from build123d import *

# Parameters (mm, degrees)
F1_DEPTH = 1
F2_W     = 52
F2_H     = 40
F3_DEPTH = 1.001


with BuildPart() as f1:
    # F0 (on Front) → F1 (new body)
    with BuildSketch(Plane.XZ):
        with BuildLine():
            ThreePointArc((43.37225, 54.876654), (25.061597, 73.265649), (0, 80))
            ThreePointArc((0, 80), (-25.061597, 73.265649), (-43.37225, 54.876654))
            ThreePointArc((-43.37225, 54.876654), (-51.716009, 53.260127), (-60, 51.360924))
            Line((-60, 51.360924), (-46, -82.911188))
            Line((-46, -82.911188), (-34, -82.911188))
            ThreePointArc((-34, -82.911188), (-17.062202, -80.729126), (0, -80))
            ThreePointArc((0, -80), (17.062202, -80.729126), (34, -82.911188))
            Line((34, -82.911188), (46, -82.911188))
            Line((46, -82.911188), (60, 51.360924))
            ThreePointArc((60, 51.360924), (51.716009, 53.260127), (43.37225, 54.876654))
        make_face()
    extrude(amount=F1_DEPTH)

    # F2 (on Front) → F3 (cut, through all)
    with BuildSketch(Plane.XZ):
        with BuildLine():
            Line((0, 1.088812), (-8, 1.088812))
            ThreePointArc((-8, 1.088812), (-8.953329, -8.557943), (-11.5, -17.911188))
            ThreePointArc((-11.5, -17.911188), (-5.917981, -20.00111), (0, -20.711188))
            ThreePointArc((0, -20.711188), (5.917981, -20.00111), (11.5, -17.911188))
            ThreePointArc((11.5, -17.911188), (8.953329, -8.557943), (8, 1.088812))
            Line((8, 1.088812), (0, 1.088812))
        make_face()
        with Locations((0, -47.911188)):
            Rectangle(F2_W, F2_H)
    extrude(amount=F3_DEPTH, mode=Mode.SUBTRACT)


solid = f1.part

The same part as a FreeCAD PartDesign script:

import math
import FreeCAD as App
import Part
import Sketcher

V = App.Vector


def add_polygon(sketch, points):
    """Adds a closed chain of lines whose ends are joined by coincident constraints."""
    first, n = sketch.GeometryCount, len(points)
    for a, b in zip(points, points[1:] + points[:1]):
        sketch.addGeometry(Part.LineSegment(App.Vector(*a, 0), App.Vector(*b, 0)), False)
    for i in range(n):
        sketch.addConstraint(Sketcher.Constraint("Coincident", first + i, 2, first + (i + 1) % n, 1))

doc = App.newDocument("Part")
body = doc.addObject("PartDesign::Body", "Body")

sketch1 = body.newObject("Sketcher::SketchObject", "Sketch")
sketch1.AttachmentSupport = (doc.getObject("XZ_Plane"), [""])
sketch1.MapMode = "FlatFace"
sketch1.addGeometry([
    Part.ArcOfCircle(Part.Circle(V(0.000001, 30.000002, 0), V(0, 0, 1), 49.999998), math.radians(29.836922), math.radians(90.000001)),
    Part.ArcOfCircle(Part.Circle(V(-0.000001, 30.000002, 0), V(0, 0, 1), 49.999998), math.radians(89.999999), math.radians(150.163078)),
    Part.ArcOfCircle(Part.Circle(V(0.000079, -191.332655, 0), V(0, 0, 1), 250.000365), math.radians(99.990743), math.radians(103.886538)),
    Part.LineSegment(V(-60, 51.360924, 0), V(-46, -82.911188, 0)),
    Part.LineSegment(V(-46, -82.911188, 0), V(-34, -82.911188, 0)),
    Part.ArcOfCircle(Part.Circle(V(0, -279.999963, 0), V(0, 0, 1), 199.999963), math.radians(90), math.radians(99.787821)),
    Part.ArcOfCircle(Part.Circle(V(0, -279.999963, 0), V(0, 0, 1), 199.999963), math.radians(80.212179), math.radians(90)),
    Part.LineSegment(V(34, -82.911188, 0), V(46, -82.911188, 0)),
    Part.LineSegment(V(46, -82.911188, 0), V(60, 51.360924, 0)),
    Part.ArcOfCircle(Part.Circle(V(-0.000079, -191.332655, 0), V(0, 0, 1), 250.000365), math.radians(76.113462), math.radians(80.009257)),
], False)
sketch1.addConstraint([
    Sketcher.Constraint("Tangent", 0, 2, 1, 1),
    Sketcher.Constraint("Coincident", 1, 2, 2, 1),
    Sketcher.Constraint("Coincident", 2, 2, 3, 1),
    Sketcher.Constraint("Coincident", 3, 2, 4, 1),
    Sketcher.Constraint("Coincident", 4, 2, 5, 2),
    Sketcher.Constraint("Tangent", 5, 1, 6, 2),
    Sketcher.Constraint("Coincident", 6, 1, 7, 1),
    Sketcher.Constraint("Coincident", 7, 2, 8, 1),
    Sketcher.Constraint("Coincident", 8, 2, 9, 1),
    Sketcher.Constraint("Coincident", 9, 2, 0, 1),
    Sketcher.Constraint("Horizontal", 4),
    Sketcher.Constraint("Horizontal", 7),
    Sketcher.Constraint("Equal", 0, 1),
    Sketcher.Constraint("Equal", 5, 6),
    Sketcher.Constraint("Equal", 2, 9),
    Sketcher.Constraint("Symmetric", 0, 2, 5, 1, -1, 1),
    Sketcher.Constraint("Symmetric", 2, 3, 9, 3, -2),
    Sketcher.Constraint("Symmetric", 4, 2, 6, 1, -2),
    Sketcher.Constraint("PointOnObject", 0, 3, -2),
    Sketcher.Constraint("PointOnObject", 0, 2, -2),
    Sketcher.Constraint("Horizontal", 2, 2, 8, 2),
    Sketcher.Constraint("Equal", 4, 7),
    Sketcher.Constraint("DistanceX", 4, 1, 4, 2, 12.0),
    Sketcher.Constraint("Distance", 3, 135.0),
    Sketcher.Constraint("DistanceY", -1, 1, 0, 2, 80.0),
    Sketcher.Constraint("DistanceX", 2, 2, -1, 1, 60.0),
    Sketcher.Constraint("DistanceX", 3, 2, -1, 1, 46.0),
    Sketcher.Constraint("Radius", 0, 49.999998),
    Sketcher.Constraint("Radius", 2, 250.000365),
    Sketcher.Constraint("Radius", 5, 199.999963),
    Sketcher.Constraint("DistanceX", 1, 2, 9, 3, 43.372171),
])
pad1 = body.newObject("PartDesign::Pad", "Pad")
pad1.Profile = sketch1
pad1.Length = 1

sketch2 = body.newObject("Sketcher::SketchObject", "Sketch001")
sketch2.AttachmentSupport = (doc.getObject("XZ_Plane"), [""])
sketch2.MapMode = "FlatFace"
sketch2.addGeometry(Part.ArcOfCircle(Part.Circle(V(-66, 2, 0), V(0, 0, 1), 58), math.radians(-20.02), math.radians(-0.85)), False)
sketch2.addGeometry(Part.ArcOfCircle(Part.Circle(V(0, 4, 0), V(0, 0, 1), 25), math.radians(-117), math.radians(-90)), False)
sketch2.addGeometry(Part.ArcOfCircle(Part.Circle(V(0, 4, 0), V(0, 0, 1), 25), math.radians(-90), math.radians(-63)), False)
sketch2.addGeometry(Part.ArcOfCircle(Part.Circle(V(66, 2, 0), V(0, 0, 1), 58), math.radians(-179.15), math.radians(-159.98)), False)
sketch2.addGeometry(Part.LineSegment(V(8, 1, 0), V(-8, 1, 0)), False)
add_polygon(sketch2, [(-26, -28), (-26, -68), (26, -68), (26, -28)])
sketch2.addConstraint([
    Sketcher.Constraint("Coincident", 0, 1, 1, 1),
    Sketcher.Constraint("Tangent", 1, 2, 2, 1),
    Sketcher.Constraint("Coincident", 2, 2, 3, 2),
    Sketcher.Constraint("Coincident", 3, 1, 4, 1),
    Sketcher.Constraint("Coincident", 4, 2, 0, 2),
    Sketcher.Constraint("Horizontal", 4),
    Sketcher.Constraint("Vertical", 5),
    Sketcher.Constraint("Horizontal", 6),
    Sketcher.Constraint("Vertical", 7),
    Sketcher.Constraint("Horizontal", 8),
    Sketcher.Constraint("Equal", 1, 2),
    Sketcher.Constraint("Equal", 0, 3),
    Sketcher.Constraint("Symmetric", 0, 3, 3, 3, -2),
    Sketcher.Constraint("PointOnObject", 1, 2, -2),
    Sketcher.Constraint("Horizontal", 0, 1, 2, 2),
    Sketcher.Constraint("DistanceX", 4, 2, 4, 1, 16.0),
    Sketcher.Constraint("DistanceX", 6, 1, 6, 2, 52.0),
    Sketcher.Constraint("DistanceY", 5, 2, 5, 1, 40.0),
    Sketcher.Constraint("DistanceX", 5, 2, -1, 1, 26.0),
    Sketcher.Constraint("DistanceX", 0, 1, 2, 2, 23.0),
    Sketcher.Constraint("DistanceY", 2, 2, 3, 1, 19.0),
    Sketcher.Constraint("DistanceY", 5, 2, 0, 1, 50.0),
    Sketcher.Constraint("DistanceY", 1, 2, 2, 2, 2.8),
    Sketcher.Constraint("Radius", 0, 58.000004),
    Sketcher.Constraint("DistanceY", -1, 1, 0, 3, 1.949479),
])
pocket1 = body.newObject("PartDesign::Pocket", "Pocket")
pocket1.Profile = sketch2
pocket1.Type = "ThroughAll"
pocket1.Reversed = True

doc.recompute()
